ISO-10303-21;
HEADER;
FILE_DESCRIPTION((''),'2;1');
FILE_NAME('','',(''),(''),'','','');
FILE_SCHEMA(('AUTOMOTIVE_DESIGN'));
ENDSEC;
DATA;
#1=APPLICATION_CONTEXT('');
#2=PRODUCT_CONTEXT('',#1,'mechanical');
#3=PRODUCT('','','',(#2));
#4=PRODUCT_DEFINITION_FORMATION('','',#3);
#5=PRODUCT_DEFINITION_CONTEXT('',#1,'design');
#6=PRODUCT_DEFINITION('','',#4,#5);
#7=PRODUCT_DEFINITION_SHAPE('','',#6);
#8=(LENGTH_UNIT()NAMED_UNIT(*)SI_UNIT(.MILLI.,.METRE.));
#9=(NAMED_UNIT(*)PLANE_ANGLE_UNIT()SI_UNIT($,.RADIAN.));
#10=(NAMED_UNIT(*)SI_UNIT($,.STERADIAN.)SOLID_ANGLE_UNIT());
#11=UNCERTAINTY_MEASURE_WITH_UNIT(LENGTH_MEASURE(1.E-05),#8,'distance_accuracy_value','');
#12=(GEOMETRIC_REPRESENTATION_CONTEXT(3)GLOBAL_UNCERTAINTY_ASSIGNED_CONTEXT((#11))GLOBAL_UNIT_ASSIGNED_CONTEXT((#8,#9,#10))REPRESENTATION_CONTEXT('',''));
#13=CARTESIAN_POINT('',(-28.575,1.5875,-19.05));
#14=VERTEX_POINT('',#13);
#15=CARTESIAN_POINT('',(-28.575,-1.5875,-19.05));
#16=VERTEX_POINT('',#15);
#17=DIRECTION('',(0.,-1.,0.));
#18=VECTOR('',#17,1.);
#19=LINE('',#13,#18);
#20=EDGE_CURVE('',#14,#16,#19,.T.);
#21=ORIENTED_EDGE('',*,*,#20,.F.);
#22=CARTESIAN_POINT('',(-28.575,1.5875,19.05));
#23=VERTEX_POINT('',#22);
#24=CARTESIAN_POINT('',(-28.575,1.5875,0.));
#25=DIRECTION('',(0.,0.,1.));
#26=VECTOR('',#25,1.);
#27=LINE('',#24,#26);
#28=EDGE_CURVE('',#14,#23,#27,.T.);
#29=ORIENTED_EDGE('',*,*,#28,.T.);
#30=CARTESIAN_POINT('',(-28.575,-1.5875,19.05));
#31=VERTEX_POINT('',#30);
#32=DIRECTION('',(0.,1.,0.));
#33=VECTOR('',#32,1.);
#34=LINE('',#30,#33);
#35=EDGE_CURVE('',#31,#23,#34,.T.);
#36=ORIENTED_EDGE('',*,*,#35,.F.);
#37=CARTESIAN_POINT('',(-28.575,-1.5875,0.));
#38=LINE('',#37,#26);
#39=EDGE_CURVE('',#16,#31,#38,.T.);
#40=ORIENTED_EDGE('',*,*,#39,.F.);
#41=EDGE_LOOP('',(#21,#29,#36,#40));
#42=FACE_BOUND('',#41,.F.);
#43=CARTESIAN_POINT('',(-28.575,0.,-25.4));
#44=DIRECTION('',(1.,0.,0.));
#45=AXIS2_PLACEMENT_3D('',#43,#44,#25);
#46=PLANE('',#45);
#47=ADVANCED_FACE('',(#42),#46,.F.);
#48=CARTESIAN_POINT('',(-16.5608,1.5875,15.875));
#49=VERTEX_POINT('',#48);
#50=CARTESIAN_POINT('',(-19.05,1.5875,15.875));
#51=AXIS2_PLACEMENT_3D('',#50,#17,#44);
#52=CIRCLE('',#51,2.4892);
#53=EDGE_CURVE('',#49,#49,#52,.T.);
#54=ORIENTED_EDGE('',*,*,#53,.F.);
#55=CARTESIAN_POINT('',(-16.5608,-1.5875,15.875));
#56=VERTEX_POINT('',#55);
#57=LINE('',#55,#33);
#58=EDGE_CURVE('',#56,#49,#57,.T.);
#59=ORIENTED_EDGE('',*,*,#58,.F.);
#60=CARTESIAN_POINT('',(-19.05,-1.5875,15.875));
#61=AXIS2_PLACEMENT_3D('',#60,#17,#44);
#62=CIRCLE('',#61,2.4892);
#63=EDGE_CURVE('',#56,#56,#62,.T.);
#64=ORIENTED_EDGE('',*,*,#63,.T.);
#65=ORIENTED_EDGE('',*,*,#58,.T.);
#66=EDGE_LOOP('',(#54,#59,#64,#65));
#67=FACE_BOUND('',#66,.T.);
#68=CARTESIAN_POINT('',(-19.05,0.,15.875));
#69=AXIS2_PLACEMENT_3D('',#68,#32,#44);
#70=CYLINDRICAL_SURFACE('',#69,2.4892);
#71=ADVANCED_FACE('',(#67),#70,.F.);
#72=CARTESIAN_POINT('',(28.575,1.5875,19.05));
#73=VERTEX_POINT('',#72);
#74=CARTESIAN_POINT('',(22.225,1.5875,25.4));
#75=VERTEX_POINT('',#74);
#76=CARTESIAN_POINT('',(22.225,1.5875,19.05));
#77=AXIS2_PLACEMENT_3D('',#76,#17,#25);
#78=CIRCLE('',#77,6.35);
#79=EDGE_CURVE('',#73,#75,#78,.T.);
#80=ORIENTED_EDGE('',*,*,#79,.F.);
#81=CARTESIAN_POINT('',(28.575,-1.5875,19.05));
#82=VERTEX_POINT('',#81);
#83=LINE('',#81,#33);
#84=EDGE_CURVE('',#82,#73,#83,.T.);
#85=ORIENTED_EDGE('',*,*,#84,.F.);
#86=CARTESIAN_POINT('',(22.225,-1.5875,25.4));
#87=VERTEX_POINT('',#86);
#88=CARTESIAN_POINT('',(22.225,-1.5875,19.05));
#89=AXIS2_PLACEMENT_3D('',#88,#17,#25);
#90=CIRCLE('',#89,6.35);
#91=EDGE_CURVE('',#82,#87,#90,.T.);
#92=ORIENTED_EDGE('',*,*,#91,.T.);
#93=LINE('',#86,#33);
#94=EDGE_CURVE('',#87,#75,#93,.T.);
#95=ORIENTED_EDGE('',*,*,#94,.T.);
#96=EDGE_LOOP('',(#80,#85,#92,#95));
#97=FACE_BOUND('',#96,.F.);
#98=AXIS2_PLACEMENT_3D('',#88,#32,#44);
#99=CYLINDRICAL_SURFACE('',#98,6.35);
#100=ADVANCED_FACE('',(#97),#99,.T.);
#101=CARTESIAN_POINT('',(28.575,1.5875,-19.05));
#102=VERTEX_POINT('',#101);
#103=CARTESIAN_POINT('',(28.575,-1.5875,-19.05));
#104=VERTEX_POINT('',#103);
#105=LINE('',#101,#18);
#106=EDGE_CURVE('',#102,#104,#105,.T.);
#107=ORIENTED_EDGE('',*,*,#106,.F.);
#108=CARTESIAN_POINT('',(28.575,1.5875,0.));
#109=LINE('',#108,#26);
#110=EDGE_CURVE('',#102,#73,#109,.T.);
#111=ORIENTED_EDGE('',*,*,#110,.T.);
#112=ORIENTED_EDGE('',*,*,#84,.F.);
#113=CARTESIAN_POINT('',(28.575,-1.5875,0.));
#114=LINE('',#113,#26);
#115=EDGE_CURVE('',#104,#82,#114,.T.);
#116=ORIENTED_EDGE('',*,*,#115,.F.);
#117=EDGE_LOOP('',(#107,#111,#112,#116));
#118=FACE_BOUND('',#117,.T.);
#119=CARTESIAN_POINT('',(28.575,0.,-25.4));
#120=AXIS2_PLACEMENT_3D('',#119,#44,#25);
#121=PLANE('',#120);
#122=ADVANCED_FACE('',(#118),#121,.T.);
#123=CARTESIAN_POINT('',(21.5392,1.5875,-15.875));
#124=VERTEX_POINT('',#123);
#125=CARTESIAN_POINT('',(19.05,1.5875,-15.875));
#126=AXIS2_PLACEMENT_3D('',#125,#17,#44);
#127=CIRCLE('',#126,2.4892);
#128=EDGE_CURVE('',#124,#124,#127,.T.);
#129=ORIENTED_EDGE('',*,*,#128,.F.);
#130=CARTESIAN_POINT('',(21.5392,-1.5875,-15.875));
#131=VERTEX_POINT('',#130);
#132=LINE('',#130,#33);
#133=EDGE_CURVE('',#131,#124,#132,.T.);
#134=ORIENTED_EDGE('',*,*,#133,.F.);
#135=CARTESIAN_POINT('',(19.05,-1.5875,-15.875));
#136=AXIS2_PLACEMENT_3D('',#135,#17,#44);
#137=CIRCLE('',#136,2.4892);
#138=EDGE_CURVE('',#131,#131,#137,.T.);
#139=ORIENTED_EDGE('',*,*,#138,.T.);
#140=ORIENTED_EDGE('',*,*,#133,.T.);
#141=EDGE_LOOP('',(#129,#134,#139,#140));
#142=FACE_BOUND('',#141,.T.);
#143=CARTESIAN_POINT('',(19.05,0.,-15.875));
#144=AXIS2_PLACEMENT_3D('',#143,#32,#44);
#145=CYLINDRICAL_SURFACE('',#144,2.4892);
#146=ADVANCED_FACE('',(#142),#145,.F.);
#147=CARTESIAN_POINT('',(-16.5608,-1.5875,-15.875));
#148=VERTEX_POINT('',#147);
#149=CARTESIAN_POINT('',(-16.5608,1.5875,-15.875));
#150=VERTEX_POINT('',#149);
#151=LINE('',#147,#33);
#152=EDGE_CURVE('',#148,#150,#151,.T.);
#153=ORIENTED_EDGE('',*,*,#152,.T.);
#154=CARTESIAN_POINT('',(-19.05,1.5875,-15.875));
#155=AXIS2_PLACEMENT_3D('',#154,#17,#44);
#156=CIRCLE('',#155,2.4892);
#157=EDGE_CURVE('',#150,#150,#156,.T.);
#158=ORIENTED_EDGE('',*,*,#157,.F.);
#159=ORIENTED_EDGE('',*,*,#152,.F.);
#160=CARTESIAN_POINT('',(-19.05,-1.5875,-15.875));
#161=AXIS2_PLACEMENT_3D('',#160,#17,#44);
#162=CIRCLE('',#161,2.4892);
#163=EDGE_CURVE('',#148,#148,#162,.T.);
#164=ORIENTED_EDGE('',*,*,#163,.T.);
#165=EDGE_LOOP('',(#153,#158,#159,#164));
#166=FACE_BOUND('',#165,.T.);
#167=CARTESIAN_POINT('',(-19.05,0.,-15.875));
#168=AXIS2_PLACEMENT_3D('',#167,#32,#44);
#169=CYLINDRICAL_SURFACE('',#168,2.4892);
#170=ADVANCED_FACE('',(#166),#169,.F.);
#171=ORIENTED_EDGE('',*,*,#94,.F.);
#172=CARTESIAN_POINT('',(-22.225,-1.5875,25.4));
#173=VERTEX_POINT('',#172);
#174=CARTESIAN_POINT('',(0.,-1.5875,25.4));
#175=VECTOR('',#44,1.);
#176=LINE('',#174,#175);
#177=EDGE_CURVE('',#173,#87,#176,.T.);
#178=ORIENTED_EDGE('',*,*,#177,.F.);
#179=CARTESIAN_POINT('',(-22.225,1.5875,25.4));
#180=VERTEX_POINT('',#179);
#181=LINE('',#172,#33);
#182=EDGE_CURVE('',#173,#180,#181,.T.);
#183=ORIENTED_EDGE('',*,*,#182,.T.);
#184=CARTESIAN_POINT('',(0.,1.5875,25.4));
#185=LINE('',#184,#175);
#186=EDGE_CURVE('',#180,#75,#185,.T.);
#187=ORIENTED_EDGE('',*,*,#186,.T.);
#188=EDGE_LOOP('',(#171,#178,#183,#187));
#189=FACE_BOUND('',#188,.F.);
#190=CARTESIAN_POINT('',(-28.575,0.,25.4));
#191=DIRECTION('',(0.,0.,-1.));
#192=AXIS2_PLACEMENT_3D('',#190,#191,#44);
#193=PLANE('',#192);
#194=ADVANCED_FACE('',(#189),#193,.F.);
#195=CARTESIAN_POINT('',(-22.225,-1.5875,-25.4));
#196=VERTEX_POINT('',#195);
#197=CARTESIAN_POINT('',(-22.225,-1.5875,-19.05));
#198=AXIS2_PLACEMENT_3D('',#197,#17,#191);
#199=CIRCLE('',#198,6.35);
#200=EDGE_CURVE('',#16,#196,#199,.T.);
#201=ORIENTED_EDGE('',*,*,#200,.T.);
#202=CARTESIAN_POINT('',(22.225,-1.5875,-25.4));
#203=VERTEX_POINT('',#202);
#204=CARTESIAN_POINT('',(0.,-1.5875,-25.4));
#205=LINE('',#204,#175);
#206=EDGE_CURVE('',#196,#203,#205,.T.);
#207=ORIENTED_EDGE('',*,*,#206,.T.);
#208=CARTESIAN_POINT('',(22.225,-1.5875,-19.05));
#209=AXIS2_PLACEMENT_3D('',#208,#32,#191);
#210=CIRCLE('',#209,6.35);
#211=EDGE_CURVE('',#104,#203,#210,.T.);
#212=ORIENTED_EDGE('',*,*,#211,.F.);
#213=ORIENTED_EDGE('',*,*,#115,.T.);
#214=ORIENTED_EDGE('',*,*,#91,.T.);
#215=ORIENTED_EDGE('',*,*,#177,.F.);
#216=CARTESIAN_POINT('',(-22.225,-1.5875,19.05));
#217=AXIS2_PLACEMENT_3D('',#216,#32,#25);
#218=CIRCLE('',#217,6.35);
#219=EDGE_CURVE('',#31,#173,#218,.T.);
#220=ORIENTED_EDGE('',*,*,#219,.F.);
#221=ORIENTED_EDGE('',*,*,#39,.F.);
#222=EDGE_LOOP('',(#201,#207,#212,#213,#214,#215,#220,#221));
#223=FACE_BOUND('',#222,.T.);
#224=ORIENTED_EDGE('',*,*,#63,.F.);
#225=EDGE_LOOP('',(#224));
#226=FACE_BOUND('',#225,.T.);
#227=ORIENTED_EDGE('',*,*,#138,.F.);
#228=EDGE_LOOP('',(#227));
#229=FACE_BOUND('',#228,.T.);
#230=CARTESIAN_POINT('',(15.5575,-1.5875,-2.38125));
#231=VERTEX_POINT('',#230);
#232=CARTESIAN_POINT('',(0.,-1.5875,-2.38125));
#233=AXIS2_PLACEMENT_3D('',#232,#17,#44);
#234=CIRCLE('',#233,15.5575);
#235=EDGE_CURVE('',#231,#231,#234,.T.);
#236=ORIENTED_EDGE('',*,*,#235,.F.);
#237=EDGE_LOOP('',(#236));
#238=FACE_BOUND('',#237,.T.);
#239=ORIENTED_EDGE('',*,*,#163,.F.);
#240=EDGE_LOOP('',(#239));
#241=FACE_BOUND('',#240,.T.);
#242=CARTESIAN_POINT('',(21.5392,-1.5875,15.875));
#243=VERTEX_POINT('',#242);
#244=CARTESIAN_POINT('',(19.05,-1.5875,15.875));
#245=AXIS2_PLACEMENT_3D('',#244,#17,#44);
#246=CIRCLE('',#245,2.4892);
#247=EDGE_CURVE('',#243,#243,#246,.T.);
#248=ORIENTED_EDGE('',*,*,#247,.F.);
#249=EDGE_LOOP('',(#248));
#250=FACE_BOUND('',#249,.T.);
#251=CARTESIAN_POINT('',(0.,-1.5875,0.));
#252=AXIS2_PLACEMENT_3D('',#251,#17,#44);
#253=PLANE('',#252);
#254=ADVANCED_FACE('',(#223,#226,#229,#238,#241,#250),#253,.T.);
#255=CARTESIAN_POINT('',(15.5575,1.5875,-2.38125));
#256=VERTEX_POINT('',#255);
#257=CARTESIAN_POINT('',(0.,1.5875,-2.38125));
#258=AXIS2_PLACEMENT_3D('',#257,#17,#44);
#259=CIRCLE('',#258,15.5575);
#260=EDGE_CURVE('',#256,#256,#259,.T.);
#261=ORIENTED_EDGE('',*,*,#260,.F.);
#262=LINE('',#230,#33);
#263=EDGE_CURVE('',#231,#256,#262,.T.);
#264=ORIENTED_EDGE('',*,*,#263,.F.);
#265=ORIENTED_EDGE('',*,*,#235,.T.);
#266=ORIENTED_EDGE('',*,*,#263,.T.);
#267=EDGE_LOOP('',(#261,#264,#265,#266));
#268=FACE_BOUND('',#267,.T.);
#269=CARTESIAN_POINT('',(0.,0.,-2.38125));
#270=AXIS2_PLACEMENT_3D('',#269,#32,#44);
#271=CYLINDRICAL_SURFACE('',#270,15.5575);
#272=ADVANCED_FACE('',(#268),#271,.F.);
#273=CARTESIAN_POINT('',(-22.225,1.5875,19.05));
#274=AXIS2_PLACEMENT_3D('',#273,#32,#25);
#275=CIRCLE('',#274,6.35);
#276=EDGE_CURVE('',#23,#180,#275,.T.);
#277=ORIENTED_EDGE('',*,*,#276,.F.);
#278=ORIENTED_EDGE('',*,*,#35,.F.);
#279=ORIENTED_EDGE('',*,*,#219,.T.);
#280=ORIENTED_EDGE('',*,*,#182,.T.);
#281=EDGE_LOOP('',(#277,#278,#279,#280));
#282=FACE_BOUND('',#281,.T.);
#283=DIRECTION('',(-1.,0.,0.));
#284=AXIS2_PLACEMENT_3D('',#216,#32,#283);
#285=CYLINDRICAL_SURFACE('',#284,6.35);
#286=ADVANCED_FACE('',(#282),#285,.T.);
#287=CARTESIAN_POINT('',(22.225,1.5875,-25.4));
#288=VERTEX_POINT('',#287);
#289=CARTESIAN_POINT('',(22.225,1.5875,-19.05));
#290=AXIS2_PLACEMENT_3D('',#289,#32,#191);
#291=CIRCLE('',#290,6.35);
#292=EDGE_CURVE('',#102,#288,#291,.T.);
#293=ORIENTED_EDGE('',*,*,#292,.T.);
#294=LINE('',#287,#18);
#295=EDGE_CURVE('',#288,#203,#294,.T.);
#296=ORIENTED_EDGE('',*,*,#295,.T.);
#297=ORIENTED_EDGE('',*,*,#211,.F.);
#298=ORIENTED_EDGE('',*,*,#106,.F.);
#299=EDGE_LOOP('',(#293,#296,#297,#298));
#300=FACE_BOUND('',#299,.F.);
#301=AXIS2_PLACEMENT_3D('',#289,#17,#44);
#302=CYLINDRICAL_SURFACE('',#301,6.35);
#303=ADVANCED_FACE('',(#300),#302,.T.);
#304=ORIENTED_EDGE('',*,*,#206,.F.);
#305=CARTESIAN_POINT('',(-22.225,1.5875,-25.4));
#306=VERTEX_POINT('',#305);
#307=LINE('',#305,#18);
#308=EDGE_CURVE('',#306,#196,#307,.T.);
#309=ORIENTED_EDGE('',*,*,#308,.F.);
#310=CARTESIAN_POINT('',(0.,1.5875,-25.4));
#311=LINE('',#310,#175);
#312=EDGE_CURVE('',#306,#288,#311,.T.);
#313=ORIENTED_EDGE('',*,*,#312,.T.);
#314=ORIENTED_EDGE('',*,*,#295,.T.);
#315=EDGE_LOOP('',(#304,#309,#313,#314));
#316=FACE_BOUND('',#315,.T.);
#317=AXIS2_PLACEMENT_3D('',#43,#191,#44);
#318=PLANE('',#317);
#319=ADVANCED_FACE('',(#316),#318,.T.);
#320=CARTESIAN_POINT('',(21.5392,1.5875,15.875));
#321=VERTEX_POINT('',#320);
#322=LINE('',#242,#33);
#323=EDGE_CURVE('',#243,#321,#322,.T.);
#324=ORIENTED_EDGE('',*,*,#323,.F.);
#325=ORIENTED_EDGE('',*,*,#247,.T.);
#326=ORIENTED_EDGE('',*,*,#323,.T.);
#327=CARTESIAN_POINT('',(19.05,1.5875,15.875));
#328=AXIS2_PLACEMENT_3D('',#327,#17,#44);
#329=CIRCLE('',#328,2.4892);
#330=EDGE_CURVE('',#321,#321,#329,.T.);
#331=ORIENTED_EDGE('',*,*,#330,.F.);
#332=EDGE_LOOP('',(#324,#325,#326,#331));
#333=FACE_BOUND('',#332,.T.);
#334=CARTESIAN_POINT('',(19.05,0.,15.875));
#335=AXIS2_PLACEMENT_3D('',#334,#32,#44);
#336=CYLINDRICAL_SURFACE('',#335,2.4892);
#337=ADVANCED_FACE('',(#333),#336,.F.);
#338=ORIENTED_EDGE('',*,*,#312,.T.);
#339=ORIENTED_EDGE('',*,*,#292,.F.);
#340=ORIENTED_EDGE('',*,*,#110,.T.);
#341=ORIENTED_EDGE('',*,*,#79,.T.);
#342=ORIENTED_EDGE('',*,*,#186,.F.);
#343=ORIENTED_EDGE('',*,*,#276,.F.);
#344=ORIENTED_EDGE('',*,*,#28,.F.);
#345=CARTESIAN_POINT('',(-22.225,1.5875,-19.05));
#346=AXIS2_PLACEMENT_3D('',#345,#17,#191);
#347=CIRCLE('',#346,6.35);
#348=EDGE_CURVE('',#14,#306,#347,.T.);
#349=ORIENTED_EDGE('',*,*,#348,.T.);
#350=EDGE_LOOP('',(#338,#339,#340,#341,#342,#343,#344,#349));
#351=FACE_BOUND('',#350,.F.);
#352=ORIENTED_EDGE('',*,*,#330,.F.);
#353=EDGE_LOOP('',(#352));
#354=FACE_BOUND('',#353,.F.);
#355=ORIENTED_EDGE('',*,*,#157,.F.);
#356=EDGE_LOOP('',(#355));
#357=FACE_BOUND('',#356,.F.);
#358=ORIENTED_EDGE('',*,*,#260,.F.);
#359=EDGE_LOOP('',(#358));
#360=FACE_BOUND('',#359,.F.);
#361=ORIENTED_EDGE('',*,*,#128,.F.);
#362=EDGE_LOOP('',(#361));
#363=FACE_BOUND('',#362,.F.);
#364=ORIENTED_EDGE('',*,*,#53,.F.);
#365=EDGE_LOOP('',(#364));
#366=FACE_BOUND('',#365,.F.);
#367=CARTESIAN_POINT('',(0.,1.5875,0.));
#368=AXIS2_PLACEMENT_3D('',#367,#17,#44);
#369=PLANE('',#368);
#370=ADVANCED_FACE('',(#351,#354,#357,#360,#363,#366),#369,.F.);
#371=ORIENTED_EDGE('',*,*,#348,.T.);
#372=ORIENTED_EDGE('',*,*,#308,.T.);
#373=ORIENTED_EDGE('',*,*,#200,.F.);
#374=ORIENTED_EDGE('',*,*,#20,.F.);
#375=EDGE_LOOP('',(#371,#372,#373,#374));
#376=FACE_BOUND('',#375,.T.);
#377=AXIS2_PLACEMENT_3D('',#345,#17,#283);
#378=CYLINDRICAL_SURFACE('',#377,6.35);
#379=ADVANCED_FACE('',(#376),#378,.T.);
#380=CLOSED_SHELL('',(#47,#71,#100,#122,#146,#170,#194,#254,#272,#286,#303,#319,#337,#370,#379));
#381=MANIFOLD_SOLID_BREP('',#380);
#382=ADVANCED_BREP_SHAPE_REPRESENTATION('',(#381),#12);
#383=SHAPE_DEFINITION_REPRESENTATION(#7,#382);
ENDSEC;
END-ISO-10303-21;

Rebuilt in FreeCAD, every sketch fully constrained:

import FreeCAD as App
import Part
import Sketcher
Q = App.Units.Quantity


def edges_at(feature, points):
    """Names of the edges that pass closest to the given points."""
    edges = feature.Shape.Edges
    near = lambda p: min(range(len(edges)), key=lambda i: edges[i].distToShape(Part.Vertex(*p))[0])
    return sorted({f"Edge{near(p) + 1}" for p in points})


def add_polygon(sketch, points):
    """Adds a closed chain of lines whose ends are joined by coincident constraints."""
    first, n = sketch.GeometryCount, len(points)
    for a, b in zip(points, points[1:] + points[:1]):
        sketch.addGeometry(Part.LineSegment(App.Vector(*a, 0), App.Vector(*b, 0)), False)
    for i in range(n):
        sketch.addConstraint(Sketcher.Constraint("Coincident", first + i, 2, first + (i + 1) % n, 1))

doc = App.newDocument("Part")
body = doc.addObject("PartDesign::Body", "Body")

# Sketch on XZ plane
sketch1 = doc.addObject("Sketcher::SketchObject", "Sketch")
body.addObject(sketch1)
sketch1.AttachmentSupport = (doc.XZ_Plane, [""])
sketch1.MapMode = "FlatFace"
add_polygon(sketch1, [(-28.6, 25.4), (-28.6, -25.4), (28.6, -25.4), (28.6, 25.4)])  # lines 0-3
sketch1.addGeometry(Part.Circle(App.Vector(-19.1, -15.9, 0), App.Vector(0, 0, 1), 2.5), False)  # 4
sketch1.addGeometry(Part.Circle(App.Vector(19.1, -15.9, 0), App.Vector(0, 0, 1), 2.5), False)  # 5
sketch1.addGeometry(Part.Circle(App.Vector(0, -2.4, 0), App.Vector(0, 0, 1), 15.6), False)  # 6
sketch1.addGeometry(Part.Circle(App.Vector(-19.1, 15.9, 0), App.Vector(0, 0, 1), 2.5), False)  # 7
sketch1.addGeometry(Part.Circle(App.Vector(19.1, 15.9, 0), App.Vector(0, 0, 1), 2.5), False)  # 8
sketch1.addConstraint([
    Sketcher.Constraint("Vertical", 0),
    Sketcher.Constraint("Horizontal", 1),
    Sketcher.Constraint("Vertical", 2),
    Sketcher.Constraint("Horizontal", 3),
    Sketcher.Constraint("Equal", 4, 5),
    Sketcher.Constraint("Equal", 5, 7),
    Sketcher.Constraint("Equal", 7, 8),
    Sketcher.Constraint("Symmetric", 5, 3, 7, 3, -1, 1),
    Sketcher.Constraint("Symmetric", 4, 3, 8, 3, -1, 1),
    Sketcher.Constraint("Symmetric", 0, 2, 2, 2, -1, 1),
    Sketcher.Constraint("Symmetric", 4, 3, 5, 3, -2),
    Sketcher.Constraint("PointOnObject", 6, 3, -2),
    Sketcher.Constraint("DistanceY", 0, 2, 0, 1, Q("2 in")),
    Sketcher.Constraint("Diameter", 4, Q("0.196 in")),
    Sketcher.Constraint("Diameter", 6, Q("1.225 in")),
    Sketcher.Constraint("DistanceX", 1, 1, 1, 2, Q("2.25 in")),
    Sketcher.Constraint("DistanceX", 4, 3, 5, 3, Q("1.5 in")),
    Sketcher.Constraint("DistanceY", 4, 3, 7, 3, Q("1.25 in")),
    Sketcher.Constraint("DistanceY", 6, 3, -1, 1, Q("0.09375 in")),
])
pad1 = doc.addObject("PartDesign::Pad", "Pad")
body.addObject(pad1)
pad1.Profile = sketch1
pad1.Length = Q("0.125 in")
pad1.Midplane = True
doc.recompute()

fillet = doc.addObject("PartDesign::Fillet", "Fillet")
body.addObject(fillet)
fillet.Base = (pad1, edges_at(pad1, [
    (-28.575, 0, 25.4),
    (28.575, 0, 25.4),
    (28.575, 0, -25.4),
    (-28.575, 0, -25.4),
]))
fillet.Radius = Q("0.25 in")

doc.recompute()
